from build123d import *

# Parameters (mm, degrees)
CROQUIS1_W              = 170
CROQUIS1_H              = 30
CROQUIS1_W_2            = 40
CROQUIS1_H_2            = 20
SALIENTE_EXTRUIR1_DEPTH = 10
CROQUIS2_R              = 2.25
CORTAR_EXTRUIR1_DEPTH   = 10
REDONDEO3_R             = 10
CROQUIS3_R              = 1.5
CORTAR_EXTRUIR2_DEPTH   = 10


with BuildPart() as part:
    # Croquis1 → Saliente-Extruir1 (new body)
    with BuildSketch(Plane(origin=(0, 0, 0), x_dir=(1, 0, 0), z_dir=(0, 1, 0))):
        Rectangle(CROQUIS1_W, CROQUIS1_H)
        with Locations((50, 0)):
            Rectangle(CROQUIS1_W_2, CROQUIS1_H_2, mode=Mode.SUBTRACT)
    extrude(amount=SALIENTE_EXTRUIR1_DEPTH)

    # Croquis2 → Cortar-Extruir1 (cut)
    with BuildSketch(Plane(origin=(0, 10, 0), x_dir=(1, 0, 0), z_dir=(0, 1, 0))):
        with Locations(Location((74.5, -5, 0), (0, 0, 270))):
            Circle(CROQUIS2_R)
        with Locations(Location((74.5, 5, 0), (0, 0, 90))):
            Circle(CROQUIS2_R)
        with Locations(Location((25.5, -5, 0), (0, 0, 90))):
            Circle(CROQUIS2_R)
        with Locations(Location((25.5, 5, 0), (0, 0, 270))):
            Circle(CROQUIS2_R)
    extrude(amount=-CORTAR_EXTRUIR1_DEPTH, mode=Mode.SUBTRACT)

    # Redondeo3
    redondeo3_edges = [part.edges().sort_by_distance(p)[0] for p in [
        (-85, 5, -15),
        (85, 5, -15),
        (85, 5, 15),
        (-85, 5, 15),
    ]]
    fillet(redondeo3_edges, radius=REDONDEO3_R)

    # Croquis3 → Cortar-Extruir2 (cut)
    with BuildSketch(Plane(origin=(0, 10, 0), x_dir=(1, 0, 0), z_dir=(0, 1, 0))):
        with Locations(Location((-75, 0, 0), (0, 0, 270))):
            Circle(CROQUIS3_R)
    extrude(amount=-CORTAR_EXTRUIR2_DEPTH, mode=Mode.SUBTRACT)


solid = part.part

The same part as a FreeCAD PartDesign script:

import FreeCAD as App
import Part
import Sketcher
Q = App.Units.Quantity


def edges_at(feature, points):
    """Names of the edges that pass closest to the given points."""
    edges = feature.Shape.Edges
    near = lambda p: min(range(len(edges)), key=lambda i: edges[i].distToShape(Part.Vertex(*p))[0])
    return sorted({f"Edge{near(p) + 1}" for p in points})

doc = App.newDocument("Part")
body = doc.addObject("PartDesign::Body", "Body")

# Sketch on XZ plane
sketch1 = doc.addObject("Sketcher::SketchObject", "Sketch")
body.addObject(sketch1)
sketch1.AttachmentSupport = (doc.XZ_Plane, [""])
sketch1.MapMode = "FlatFace"
sketch1.addGeometry(Part.LineSegment(App.Vector(-85, -15, 0), App.Vector(-85, 15, 0)), False)
sketch1.addGeometry(Part.LineSegment(App.Vector(-85, 15, 0), App.Vector(85, 15, 0)), False)
sketch1.addGeometry(Part.LineSegment(App.Vector(85, 15, 0), App.Vector(85, -15, 0)), False)
sketch1.addGeometry(Part.LineSegment(App.Vector(85, -15, 0), App.Vector(-85, -15, 0)), False)
sketch1.addGeometry(Part.LineSegment(App.Vector(70, 10, 0), App.Vector(30, 10, 0)), False)
sketch1.addGeometry(Part.LineSegment(App.Vector(30, 10, 0), App.Vector(30, -10, 0)), False)
sketch1.addGeometry(Part.LineSegment(App.Vector(30, -10, 0), App.Vector(70, -10, 0)), False)
sketch1.addGeometry(Part.LineSegment(App.Vector(70, -10, 0), App.Vector(70, 10, 0)), False)
sketch1.addConstraint(Sketcher.Constraint("Coincident", 0, 2, 1, 1))
sketch1.addConstraint(Sketcher.Constraint("Coincident", 1, 2, 2, 1))
sketch1.addConstraint(Sketcher.Constraint("Coincident", 2, 2, 3, 1))
sketch1.addConstraint(Sketcher.Constraint("Coincident", 3, 2, 0, 1))
sketch1.addConstraint(Sketcher.Constraint("Coincident", 4, 2, 5, 1))
sketch1.addConstraint(Sketcher.Constraint("Coincident", 5, 2, 6, 1))
sketch1.addConstraint(Sketcher.Constraint("Coincident", 6, 2, 7, 1))
sketch1.addConstraint(Sketcher.Constraint("Coincident", 7, 2, 4, 1))
sketch1.addConstraint(Sketcher.Constraint("Vertical", 0))
sketch1.addConstraint(Sketcher.Constraint("Horizontal", 1))
sketch1.addConstraint(Sketcher.Constraint("Vertical", 2))
sketch1.addConstraint(Sketcher.Constraint("Horizontal", 3))
sketch1.addConstraint(Sketcher.Constraint("Horizontal", 4))
sketch1.addConstraint(Sketcher.Constraint("Vertical", 5))
sketch1.addConstraint(Sketcher.Constraint("Horizontal", 6))
sketch1.addConstraint(Sketcher.Constraint("Vertical", 7))
sketch1.addConstraint(Sketcher.Constraint("Symmetric", 0, 2, 2, 2, -1, 1))
sketch1.addConstraint(Sketcher.Constraint("DistanceX", 1, 1, 1, 2, Q("170 mm")))
sketch1.addConstraint(Sketcher.Constraint("DistanceX", 4, 2, 4, 1, Q("40 mm")))
sketch1.addConstraint(Sketcher.Constraint("DistanceY", 0, 1, 0, 2, Q("30 mm")))
sketch1.addConstraint(Sketcher.Constraint("DistanceY", 5, 2, 5, 1, Q("20 mm")))
sketch1.addConstraint(Sketcher.Constraint("DistanceX", -1, 1, 4, 2, Q("30 mm")))
sketch1.addConstraint(Sketcher.Constraint("DistanceY", -1, 1, 4, 2, Q("10 mm")))
pad1 = doc.addObject("PartDesign::Pad", "Pad")
body.addObject(pad1)
pad1.Profile = sketch1
pad1.Length = 10
pad1.Reversed = True

# Sketch on XZ plane
sketch2 = doc.addObject("Sketcher::SketchObject", "Sketch001")
body.addObject(sketch2)
sketch2.AttachmentSupport = (doc.XZ_Plane, [""])
sketch2.MapMode = "FlatFace"
sketch2.AttachmentOffset = App.Placement(App.Vector(0, 0, -10), App.Rotation())
sketch2.addGeometry(Part.Circle(App.Vector(74.5, 5, 0), App.Vector(0, 0, 1), 2.2), False)
sketch2.addGeometry(Part.Circle(App.Vector(74.5, -5, 0), App.Vector(0, 0, 1), 2.2), False)
sketch2.addGeometry(Part.Circle(App.Vector(25.5, 5, 0), App.Vector(0, 0, 1), 2.2), False)
sketch2.addGeometry(Part.Circle(App.Vector(25.5, -5, 0), App.Vector(0, 0, 1), 2.2), False)
sketch2.addConstraint(Sketcher.Constraint("Equal", 0, 1))
sketch2.addConstraint(Sketcher.Constraint("Equal", 1, 2))
sketch2.addConstraint(Sketcher.Constraint("Equal", 2, 3))
sketch2.addConstraint(Sketcher.Constraint("Symmetric", 0, 3, 1, 3, -1))
sketch2.addConstraint(Sketcher.Constraint("Symmetric", 2, 3, 3, 3, -1))
sketch2.addConstraint(Sketcher.Constraint("Horizontal", 0, 3, 2, 3))
sketch2.addConstraint(Sketcher.Constraint("Diameter", 0, Q("4.5 mm")))
sketch2.addConstraint(Sketcher.Constraint("DistanceY", -1, 1, 0, 3, Q("5 mm")))
sketch2.addConstraint(Sketcher.Constraint("DistanceX", 2, 3, 0, 3, Q("49 mm")))
sketch2.addConstraint(Sketcher.Constraint("DistanceX", -1, 1, 0, 3, Q("74.5 mm")))
pocket1 = doc.addObject("PartDesign::Pocket", "Pocket")
body.addObject(pocket1)
pocket1.Profile = sketch2
pocket1.Length = 10
pocket1.Reversed = True
doc.recompute()

fillet = doc.addObject("PartDesign::Fillet", "Fillet")
body.addObject(fillet)
fillet.Base = (pocket1, edges_at(pocket1, [
    (-85, 5, -15),
    (85, 5, -15),
    (85, 5, 15),
    (-85, 5, 15),
]))
fillet.Radius = 10

# Sketch on XZ plane
sketch3 = doc.addObject("Sketcher::SketchObject", "Sketch002")
body.addObject(sketch3)
sketch3.AttachmentSupport = (doc.XZ_Plane, [""])
sketch3.MapMode = "FlatFace"
sketch3.AttachmentOffset = App.Placement(App.Vector(0, 0, -10), App.Rotation())
sketch3.addGeometry(Part.Circle(App.Vector(-75, 0, 0), App.Vector(0, 0, 1), 1.5), False)
sketch3.addConstraint(Sketcher.Constraint("PointOnObject", 0, 3, -1))
sketch3.addConstraint(Sketcher.Constraint("Diameter", 0, Q("3 mm")))
sketch3.addConstraint(Sketcher.Constraint("DistanceX", 0, 3, -1, 1, Q("75 mm")))
pocket2 = doc.addObject("PartDesign::Pocket", "Pocket001")
body.addObject(pocket2)
pocket2.Profile = sketch3
pocket2.Length = 10
pocket2.Reversed = True

doc.recompute()
